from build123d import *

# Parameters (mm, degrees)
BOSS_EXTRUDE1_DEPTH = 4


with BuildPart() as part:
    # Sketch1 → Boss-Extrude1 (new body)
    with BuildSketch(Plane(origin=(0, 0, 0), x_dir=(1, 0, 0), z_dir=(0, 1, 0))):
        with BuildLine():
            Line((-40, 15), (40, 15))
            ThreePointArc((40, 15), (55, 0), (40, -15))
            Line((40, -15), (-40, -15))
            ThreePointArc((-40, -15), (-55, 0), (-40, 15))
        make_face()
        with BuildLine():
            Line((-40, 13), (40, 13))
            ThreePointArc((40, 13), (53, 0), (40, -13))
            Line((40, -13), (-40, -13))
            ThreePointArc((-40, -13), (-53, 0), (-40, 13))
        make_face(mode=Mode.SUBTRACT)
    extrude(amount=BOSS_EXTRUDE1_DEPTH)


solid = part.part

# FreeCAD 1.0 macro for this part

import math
import FreeCAD as App
import Part
import Sketcher
Q = App.Units.Quantity

doc = App.newDocument("Part")
body = doc.addObject("PartDesign::Body", "Body")

sketch1 = doc.addObject("Sketcher::SketchObject", "Sketch")
body.addObject(sketch1)
sketch1.AttachmentSupport = (doc.XZ_Plane, [""])
sketch1.MapMode = "FlatFace"
sketch1.addGeometry(Part.LineSegment(App.Vector(40, -15, 0), App.Vector(-40, -15, 0)), False)
sketch1.addGeometry(Part.ArcOfCircle(Part.Circle(App.Vector(-40, 0, 0), App.Vector(0, 0, 1), 15), math.radians(90), math.radians(270)), False)
sketch1.addGeometry(Part.LineSegment(App.Vector(-40, 15, 0), App.Vector(40, 15, 0)), False)
sketch1.addGeometry(Part.ArcOfCircle(Part.Circle(App.Vector(40, 0, 0), App.Vector(0, 0, 1), 15), math.radians(-90), math.radians(90)), False)
sketch1.addGeometry(Part.LineSegment(App.Vector(-40, -13, 0), App.Vector(40, -13, 0)), False)
sketch1.addGeometry(Part.ArcOfCircle(Part.Circle(App.Vector(40, 0, 0), App.Vector(0, 0, 1), 13), math.radians(-90), math.radians(90)), False)
sketch1.addGeometry(Part.LineSegment(App.Vector(40, 13, 0), App.Vector(-40, 13, 0)), False)
sketch1.addGeometry(Part.ArcOfCircle(Part.Circle(App.Vector(-40, 0, 0), App.Vector(0, 0, 1), 13), math.radians(90), math.radians(270)), False)
sketch1.addConstraint(Sketcher.Constraint("Tangent", 0, 2, 1, 2))
sketch1.addConstraint(Sketcher.Constraint("Tangent", 1, 1, 2, 1))
sketch1.addConstraint(Sketcher.Constraint("Tangent", 2, 2, 3, 2))
sketch1.addConstraint(Sketcher.Constraint("Tangent", 3, 1, 0, 1))
sketch1.addConstraint(Sketcher.Constraint("Tangent", 4, 2, 5, 1))
sketch1.addConstraint(Sketcher.Constraint("Tangent", 5, 2, 6, 1))
sketch1.addConstraint(Sketcher.Constraint("Tangent", 6, 2, 7, 1))
sketch1.addConstraint(Sketcher.Constraint("Tangent", 7, 2, 4, 1))
sketch1.addConstraint(Sketcher.Constraint("Horizontal", 0))
sketch1.addConstraint(Sketcher.Constraint("Horizontal", 2))
sketch1.addConstraint(Sketcher.Constraint("Horizontal", 4))
sketch1.addConstraint(Sketcher.Constraint("Horizontal", 6))
sketch1.addConstraint(Sketcher.Constraint("Coincident", 5, 3, 3, 3))
sketch1.addConstraint(Sketcher.Constraint("Symmetric", 1, 3, 3, 3, -1, 1))
sketch1.addConstraint(Sketcher.Constraint("Vertical", 7, 3, 0, 2))
sketch1.addConstraint(Sketcher.Constraint("Radius", 1, Q("15 mm")))
sketch1.addConstraint(Sketcher.Constraint("Radius", 5, Q("13 mm")))
sketch1.addConstraint(Sketcher.Constraint("DistanceX", 0, 2, 0, 1, Q("80 mm")))
pad1 = doc.addObject("PartDesign::Pad", "Pad")
body.addObject(pad1)
pad1.Profile = sketch1
pad1.Length = 4
pad1.Reversed = True

doc.recompute()
